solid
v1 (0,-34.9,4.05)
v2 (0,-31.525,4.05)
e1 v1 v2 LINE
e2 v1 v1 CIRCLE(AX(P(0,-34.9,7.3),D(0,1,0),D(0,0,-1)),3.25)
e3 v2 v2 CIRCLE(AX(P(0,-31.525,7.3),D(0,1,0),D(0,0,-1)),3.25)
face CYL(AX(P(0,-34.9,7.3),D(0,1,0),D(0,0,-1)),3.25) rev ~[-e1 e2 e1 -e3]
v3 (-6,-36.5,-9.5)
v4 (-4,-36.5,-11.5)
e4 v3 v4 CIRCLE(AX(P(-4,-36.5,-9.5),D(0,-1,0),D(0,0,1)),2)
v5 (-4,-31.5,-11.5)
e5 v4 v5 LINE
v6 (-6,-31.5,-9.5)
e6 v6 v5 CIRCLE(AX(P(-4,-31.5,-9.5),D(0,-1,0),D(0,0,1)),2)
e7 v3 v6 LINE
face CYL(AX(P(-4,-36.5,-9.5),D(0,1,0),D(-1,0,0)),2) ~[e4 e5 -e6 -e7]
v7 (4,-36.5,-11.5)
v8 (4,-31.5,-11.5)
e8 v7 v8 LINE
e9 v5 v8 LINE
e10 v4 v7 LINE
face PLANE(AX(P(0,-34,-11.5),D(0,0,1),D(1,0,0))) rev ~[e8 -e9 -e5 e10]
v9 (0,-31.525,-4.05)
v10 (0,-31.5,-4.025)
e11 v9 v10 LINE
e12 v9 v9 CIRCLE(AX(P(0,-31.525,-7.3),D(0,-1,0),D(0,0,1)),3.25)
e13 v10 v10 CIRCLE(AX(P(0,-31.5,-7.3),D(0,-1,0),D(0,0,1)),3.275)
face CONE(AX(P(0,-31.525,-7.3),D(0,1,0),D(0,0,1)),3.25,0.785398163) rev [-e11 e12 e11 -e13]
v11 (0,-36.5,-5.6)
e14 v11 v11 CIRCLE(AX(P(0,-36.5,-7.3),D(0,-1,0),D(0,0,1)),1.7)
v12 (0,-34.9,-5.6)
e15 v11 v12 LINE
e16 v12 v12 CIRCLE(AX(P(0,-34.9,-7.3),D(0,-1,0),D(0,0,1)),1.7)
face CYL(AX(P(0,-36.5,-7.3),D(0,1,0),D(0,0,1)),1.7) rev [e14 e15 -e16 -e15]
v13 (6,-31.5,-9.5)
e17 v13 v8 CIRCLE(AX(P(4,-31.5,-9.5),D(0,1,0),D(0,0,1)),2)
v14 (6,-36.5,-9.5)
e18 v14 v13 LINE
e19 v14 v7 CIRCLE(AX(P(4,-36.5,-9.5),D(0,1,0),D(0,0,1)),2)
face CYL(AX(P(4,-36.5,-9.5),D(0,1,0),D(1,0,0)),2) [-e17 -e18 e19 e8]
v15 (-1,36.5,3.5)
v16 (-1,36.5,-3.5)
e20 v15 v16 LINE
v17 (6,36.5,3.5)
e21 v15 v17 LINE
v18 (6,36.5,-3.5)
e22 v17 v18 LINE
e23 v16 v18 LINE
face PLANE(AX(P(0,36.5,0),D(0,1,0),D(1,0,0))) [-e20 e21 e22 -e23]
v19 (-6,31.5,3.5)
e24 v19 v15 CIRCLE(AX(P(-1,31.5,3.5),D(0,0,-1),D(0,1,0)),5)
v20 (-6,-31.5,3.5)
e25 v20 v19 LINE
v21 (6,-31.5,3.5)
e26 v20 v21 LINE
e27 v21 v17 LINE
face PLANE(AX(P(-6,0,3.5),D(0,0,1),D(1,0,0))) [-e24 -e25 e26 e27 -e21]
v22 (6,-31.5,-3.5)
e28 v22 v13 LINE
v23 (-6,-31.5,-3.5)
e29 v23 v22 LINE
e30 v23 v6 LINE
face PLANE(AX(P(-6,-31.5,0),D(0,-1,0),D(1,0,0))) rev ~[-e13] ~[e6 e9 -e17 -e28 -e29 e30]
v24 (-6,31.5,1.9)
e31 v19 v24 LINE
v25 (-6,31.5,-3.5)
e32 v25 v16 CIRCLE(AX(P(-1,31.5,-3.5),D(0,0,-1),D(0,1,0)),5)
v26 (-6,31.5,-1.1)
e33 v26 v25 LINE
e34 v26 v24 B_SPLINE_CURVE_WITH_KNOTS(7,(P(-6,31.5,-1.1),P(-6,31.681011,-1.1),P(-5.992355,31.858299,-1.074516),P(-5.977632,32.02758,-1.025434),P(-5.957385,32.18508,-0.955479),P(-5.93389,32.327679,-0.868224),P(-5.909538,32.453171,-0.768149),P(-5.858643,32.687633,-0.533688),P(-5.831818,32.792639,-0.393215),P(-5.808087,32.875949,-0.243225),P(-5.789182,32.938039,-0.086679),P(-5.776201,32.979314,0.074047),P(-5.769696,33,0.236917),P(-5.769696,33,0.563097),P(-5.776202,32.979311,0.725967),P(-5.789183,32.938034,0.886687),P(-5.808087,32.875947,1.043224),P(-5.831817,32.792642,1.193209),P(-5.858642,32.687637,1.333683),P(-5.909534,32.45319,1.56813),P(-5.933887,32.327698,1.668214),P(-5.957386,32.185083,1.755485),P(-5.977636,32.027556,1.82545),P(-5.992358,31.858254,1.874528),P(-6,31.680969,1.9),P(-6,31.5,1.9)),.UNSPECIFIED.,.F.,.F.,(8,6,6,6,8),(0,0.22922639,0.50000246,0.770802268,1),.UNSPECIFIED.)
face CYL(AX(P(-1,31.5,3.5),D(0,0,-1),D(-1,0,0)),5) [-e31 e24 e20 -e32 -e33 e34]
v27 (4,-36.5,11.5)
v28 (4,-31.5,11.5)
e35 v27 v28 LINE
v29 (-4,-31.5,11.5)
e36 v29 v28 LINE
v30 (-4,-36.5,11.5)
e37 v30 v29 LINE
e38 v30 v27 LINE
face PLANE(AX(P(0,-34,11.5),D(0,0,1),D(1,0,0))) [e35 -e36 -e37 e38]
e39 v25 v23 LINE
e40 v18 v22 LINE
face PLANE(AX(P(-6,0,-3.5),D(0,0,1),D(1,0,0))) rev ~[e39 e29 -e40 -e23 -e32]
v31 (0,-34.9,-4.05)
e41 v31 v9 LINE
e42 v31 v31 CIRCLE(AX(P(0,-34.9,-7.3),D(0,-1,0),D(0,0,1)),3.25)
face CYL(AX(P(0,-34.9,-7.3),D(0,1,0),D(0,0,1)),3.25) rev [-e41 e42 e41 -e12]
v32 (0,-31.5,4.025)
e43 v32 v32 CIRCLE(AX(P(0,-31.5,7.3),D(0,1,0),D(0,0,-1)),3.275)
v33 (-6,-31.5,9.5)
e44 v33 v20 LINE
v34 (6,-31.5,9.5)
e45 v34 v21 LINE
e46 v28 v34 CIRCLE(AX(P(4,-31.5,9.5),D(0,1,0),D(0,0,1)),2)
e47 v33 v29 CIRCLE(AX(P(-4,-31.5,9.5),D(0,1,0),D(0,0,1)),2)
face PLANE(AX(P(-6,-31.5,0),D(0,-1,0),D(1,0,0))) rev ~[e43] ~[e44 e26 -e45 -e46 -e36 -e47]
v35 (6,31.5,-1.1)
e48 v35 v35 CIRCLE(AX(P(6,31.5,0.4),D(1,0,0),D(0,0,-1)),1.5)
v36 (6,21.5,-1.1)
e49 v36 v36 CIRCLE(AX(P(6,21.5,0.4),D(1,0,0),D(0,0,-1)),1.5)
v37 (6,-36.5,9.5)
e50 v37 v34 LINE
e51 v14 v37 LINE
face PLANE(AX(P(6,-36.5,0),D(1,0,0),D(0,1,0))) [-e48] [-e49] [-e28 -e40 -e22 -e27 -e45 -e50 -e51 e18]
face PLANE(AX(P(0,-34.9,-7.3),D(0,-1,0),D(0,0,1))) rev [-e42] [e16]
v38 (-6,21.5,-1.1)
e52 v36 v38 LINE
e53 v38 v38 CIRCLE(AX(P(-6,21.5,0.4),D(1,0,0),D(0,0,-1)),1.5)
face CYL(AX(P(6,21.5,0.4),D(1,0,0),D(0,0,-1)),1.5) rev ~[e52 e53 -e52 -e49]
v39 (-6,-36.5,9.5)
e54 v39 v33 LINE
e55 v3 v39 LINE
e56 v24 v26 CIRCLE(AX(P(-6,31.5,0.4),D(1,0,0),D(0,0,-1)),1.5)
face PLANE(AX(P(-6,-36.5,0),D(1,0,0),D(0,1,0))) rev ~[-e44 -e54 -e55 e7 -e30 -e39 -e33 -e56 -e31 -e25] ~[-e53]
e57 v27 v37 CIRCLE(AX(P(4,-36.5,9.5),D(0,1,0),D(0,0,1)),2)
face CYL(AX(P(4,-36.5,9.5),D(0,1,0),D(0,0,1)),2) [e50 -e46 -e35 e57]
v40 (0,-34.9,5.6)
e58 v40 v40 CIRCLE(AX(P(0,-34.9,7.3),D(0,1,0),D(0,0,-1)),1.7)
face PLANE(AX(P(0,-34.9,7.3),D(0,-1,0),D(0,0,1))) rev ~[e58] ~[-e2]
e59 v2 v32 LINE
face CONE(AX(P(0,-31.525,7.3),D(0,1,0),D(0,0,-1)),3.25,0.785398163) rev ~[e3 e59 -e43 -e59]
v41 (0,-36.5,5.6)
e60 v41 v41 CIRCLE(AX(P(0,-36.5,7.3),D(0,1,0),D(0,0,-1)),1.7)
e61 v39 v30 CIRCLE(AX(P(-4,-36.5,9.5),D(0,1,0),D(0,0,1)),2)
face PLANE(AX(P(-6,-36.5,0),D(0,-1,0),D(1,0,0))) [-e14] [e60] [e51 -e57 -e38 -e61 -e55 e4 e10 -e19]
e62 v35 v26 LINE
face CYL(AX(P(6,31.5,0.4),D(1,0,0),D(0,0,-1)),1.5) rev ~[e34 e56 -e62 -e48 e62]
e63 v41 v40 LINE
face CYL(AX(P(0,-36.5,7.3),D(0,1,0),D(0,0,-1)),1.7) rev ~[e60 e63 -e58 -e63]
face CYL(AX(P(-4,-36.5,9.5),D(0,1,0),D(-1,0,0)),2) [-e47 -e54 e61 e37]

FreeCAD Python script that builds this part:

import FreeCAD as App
import Part
import Sketcher
Q = App.Units.Quantity


def edges_at(feature, points):
    """Names of the edges that pass closest to the given points."""
    edges = feature.Shape.Edges
    near = lambda p: min(range(len(edges)), key=lambda i: edges[i].distToShape(Part.Vertex(*p))[0])
    return sorted({f"Edge{near(p) + 1}" for p in points})

doc = App.newDocument("Part")
body = doc.addObject("PartDesign::Body", "Body")

# Sketch on XZ plane
sketch1 = body.newObject("Sketcher::SketchObject", "Sketch")
sketch1.AttachmentSupport = (doc.getObject("XZ_Plane"), [""])
sketch1.MapMode = "FlatFace"
sketch1.addGeometry([
    Part.LineSegment(App.Vector(-6, -4, 0), App.Vector(-6, 4, 0)),
    Part.LineSegment(App.Vector(-6, 4, 0), App.Vector(6, 4, 0)),
    Part.LineSegment(App.Vector(6, 4, 0), App.Vector(6, -4, 0)),
    Part.LineSegment(App.Vector(6, -4, 0), App.Vector(-6, -4, 0)),
], False)
sketch1.addConstraint([
    Sketcher.Constraint("Coincident", 0, 2, 1, 1),
    Sketcher.Constraint("Coincident", 1, 2, 2, 1),
    Sketcher.Constraint("Coincident", 2, 2, 3, 1),
    Sketcher.Constraint("Coincident", 3, 2, 0, 1),
    Sketcher.Constraint("Vertical", 0),
    Sketcher.Constraint("Horizontal", 1),
    Sketcher.Constraint("Vertical", 2),
    Sketcher.Constraint("Horizontal", 3),
    Sketcher.Constraint("Symmetric", 0, 2, 2, 2, -1, 1),
    Sketcher.Constraint("DistanceX", 1, 1, 1, 2, Q("12 mm")),
    Sketcher.Constraint("DistanceY", 0, 1, 0, 2, Q("7 mm")),
])
pad1 = body.newObject("PartDesign::Pad", "Pad")
pad1.Profile = sketch1
pad1.Length = 73
pad1.Midplane = True

# Sketch on XY plane
sketch2 = body.newObject("Sketcher::SketchObject", "Sketch001")
sketch2.AttachmentSupport = (doc.getObject("XY_Plane"), [""])
sketch2.MapMode = "FlatFace"
sketch2.addGeometry([
    Part.LineSegment(App.Vector(-6, -32, 0), App.Vector(-6, -36, 0)),
    Part.LineSegment(App.Vector(-6, -36, 0), App.Vector(6, -36, 0)),
    Part.LineSegment(App.Vector(6, -36, 0), App.Vector(6, -32, 0)),
    Part.LineSegment(App.Vector(6, -32, 0), App.Vector(-6, -32, 0)),
], False)
sketch2.addConstraint([
    Sketcher.Constraint("Coincident", 0, 2, 1, 1),
    Sketcher.Constraint("Coincident", 1, 2, 2, 1),
    Sketcher.Constraint("Coincident", 2, 2, 3, 1),
    Sketcher.Constraint("Coincident", 3, 2, 0, 1),
    Sketcher.Constraint("Vertical", 0),
    Sketcher.Constraint("Horizontal", 1),
    Sketcher.Constraint("Vertical", 2),
    Sketcher.Constraint("Horizontal", 3),
    Sketcher.Constraint("DistanceX", 1, 1, 1, 2, Q("12 mm")),
    Sketcher.Constraint("DistanceY", 0, 2, 0, 1, Q("5 mm")),
    Sketcher.Constraint("DistanceX", 0, 2, -1, 1, Q("6 mm")),
    Sketcher.Constraint("DistanceY", 0, 2, -1, 1, Q("36.5 mm")),
])
pad2 = body.newObject("PartDesign::Pad", "Pad001")
pad2.Profile = sketch2
pad2.Length = 23
pad2.Midplane = True
doc.recompute()

fillet = body.newObject("PartDesign::Fillet", "Fillet")
fillet.Base = (pad2, edges_at(pad2, [
    (-6, -34, -11.5),
    (6, -34, -11.5),
    (-6, -34, 11.5),
    (6, -34, 11.5),
]))
fillet.Radius = 2

# Sketch on YZ plane
sketch3 = body.newObject("Sketcher::SketchObject", "Sketch002")
sketch3.AttachmentSupport = (doc.getObject("YZ_Plane"), [""])
sketch3.MapMode = "FlatFace"
sketch3.addGeometry([
    Part.LineSegment(App.Vector(-36.5, -7.3, 0), App.Vector(-31.5, -7.3, 0)),  # 0
    Part.LineSegment(App.Vector(-31.5, -7.3, 0), App.Vector(-31.5, -4.025, 0)),  # 1
    Part.LineSegment(App.Vector(-31.5, -4.025, 0), App.Vector(-31.525, -4.05, 0)),  # 2
    Part.LineSegment(App.Vector(-31.525, -4.05, 0), App.Vector(-34.9, -4.05, 0)),  # 3
    Part.LineSegment(App.Vector(-34.9, -4.05, 0), App.Vector(-34.9, -5.6, 0)),  # 4
    Part.LineSegment(App.Vector(-34.9, -5.6, 0), App.Vector(-36.5, -5.6, 0)),  # 5
    Part.LineSegment(App.Vector(-36.5, -5.6, 0), App.Vector(-36.5, -7.3, 0)),  # 6
], False)
sketch3.addGeometry(Part.LineSegment(App.Vector(-31.5, -7.3, 0), App.Vector(-36.5, -7.3, 0)), True)  # axis
sketch3.addConstraint([
    Sketcher.Constraint("Coincident", 0, 2, 1, 1),
    Sketcher.Constraint("Coincident", 1, 2, 2, 1),
    Sketcher.Constraint("Coincident", 2, 2, 3, 1),
    Sketcher.Constraint("Coincident", 3, 2, 4, 1),
    Sketcher.Constraint("Coincident", 4, 2, 5, 1),
    Sketcher.Constraint("Coincident", 5, 2, 6, 1),
    Sketcher.Constraint("Coincident", 6, 2, 0, 1),
    Sketcher.Constraint("Horizontal", 0),
    Sketcher.Constraint("Vertical", 1),
    Sketcher.Constraint("Horizontal", 3),
    Sketcher.Constraint("Vertical", 4),
    Sketcher.Constraint("Horizontal", 5),
    Sketcher.Constraint("Vertical", 6),
    Sketcher.Constraint("Horizontal", 7),
    Sketcher.Constraint("Coincident", 7, 1, 0, 2),
    Sketcher.Constraint("Vertical", 5, 2, 7, 2),
    Sketcher.Constraint("DistanceX", 0, 1, 0, 2, Q("5 mm")),
    Sketcher.Constraint("Angle", 2, Q("-135 deg")),
    Sketcher.Constraint("DistanceX", 5, 2, 5, 1, Q("1.6 mm")),
    Sketcher.Constraint("DistanceY", 6, 2, 6, 1, Q("1.7 mm")),
    Sketcher.Constraint("DistanceY", 4, 2, 4, 1, Q("1.55 mm")),
    Sketcher.Constraint("DistanceX", 0, 2, -1, 1, Q("31.5 mm")),
    Sketcher.Constraint("DistanceY", 0, 2, -1, 1, Q("7.3 mm")),
    Sketcher.Constraint("DistanceX", 3, 2, 3, 1, Q("3.375 mm")),
])
groove = body.newObject("PartDesign::Groove", "Groove")
groove.Profile = sketch3
groove.ReferenceAxis = (sketch3, ["Axis0"])
groove.Angle = 360
doc.recompute()

mirrored = body.newObject("PartDesign::Mirrored", "Mirrored")
mirrored.Originals = [groove]
mirrored.MirrorPlane = (doc.getObject("XY_Plane"), [""])
body.Tip = mirrored
doc.recompute()

fillet2 = body.newObject("PartDesign::Fillet", "Fillet001")
fillet2.Base = (mirrored, edges_at(mirrored, [(-6, 36.5, 0)]))
fillet2.Radius = 5

# Sketch on YZ plane
sketch4 = body.newObject("Sketcher::SketchObject", "Sketch003")
sketch4.AttachmentSupport = (doc.getObject("YZ_Plane"), [""])
sketch4.MapMode = "FlatFace"
sketch4.AttachmentOffset = App.Placement(App.Vector(0, 0, 6), App.Rotation())
sketch4.addGeometry(Part.Circle(App.Vector(31.5, 0.4, 0), App.Vector(0, 0, 1), 1.5), False)
sketch4.addConstraint([
    Sketcher.Constraint("Diameter", 0, Q("3 mm")),
    Sketcher.Constraint("DistanceX", -1, 1, 0, 3, Q("31.5 mm")),
    Sketcher.Constraint("DistanceY", -1, 1, 0, 3, Q("0.4 mm")),
])
pocket1 = body.newObject("PartDesign::Pocket", "Pocket")
pocket1.Profile = sketch4
pocket1.Type = "UpToFirst"

# Sketch on YZ plane
sketch5 = body.newObject("Sketcher::SketchObject", "Sketch004")
sketch5.AttachmentSupport = (doc.getObject("YZ_Plane"), [""])
sketch5.MapMode = "FlatFace"
sketch5.AttachmentOffset = App.Placement(App.Vector(0, 0, 6), App.Rotation())
sketch5.addGeometry(Part.Circle(App.Vector(21.5, 0.4, 0), App.Vector(0, 0, 1), 1.5), False)
sketch5.addConstraint([
    Sketcher.Constraint("Diameter", 0, Q("3 mm")),
    Sketcher.Constraint("DistanceX", -1, 1, 0, 3, Q("21.5 mm")),
    Sketcher.Constraint("DistanceY", -1, 1, 0, 3, Q("0.4 mm")),
])
pocket2 = body.newObject("PartDesign::Pocket", "Pocket001")
pocket2.Profile = sketch5
pocket2.Type = "UpToFirst"

doc.recompute()
